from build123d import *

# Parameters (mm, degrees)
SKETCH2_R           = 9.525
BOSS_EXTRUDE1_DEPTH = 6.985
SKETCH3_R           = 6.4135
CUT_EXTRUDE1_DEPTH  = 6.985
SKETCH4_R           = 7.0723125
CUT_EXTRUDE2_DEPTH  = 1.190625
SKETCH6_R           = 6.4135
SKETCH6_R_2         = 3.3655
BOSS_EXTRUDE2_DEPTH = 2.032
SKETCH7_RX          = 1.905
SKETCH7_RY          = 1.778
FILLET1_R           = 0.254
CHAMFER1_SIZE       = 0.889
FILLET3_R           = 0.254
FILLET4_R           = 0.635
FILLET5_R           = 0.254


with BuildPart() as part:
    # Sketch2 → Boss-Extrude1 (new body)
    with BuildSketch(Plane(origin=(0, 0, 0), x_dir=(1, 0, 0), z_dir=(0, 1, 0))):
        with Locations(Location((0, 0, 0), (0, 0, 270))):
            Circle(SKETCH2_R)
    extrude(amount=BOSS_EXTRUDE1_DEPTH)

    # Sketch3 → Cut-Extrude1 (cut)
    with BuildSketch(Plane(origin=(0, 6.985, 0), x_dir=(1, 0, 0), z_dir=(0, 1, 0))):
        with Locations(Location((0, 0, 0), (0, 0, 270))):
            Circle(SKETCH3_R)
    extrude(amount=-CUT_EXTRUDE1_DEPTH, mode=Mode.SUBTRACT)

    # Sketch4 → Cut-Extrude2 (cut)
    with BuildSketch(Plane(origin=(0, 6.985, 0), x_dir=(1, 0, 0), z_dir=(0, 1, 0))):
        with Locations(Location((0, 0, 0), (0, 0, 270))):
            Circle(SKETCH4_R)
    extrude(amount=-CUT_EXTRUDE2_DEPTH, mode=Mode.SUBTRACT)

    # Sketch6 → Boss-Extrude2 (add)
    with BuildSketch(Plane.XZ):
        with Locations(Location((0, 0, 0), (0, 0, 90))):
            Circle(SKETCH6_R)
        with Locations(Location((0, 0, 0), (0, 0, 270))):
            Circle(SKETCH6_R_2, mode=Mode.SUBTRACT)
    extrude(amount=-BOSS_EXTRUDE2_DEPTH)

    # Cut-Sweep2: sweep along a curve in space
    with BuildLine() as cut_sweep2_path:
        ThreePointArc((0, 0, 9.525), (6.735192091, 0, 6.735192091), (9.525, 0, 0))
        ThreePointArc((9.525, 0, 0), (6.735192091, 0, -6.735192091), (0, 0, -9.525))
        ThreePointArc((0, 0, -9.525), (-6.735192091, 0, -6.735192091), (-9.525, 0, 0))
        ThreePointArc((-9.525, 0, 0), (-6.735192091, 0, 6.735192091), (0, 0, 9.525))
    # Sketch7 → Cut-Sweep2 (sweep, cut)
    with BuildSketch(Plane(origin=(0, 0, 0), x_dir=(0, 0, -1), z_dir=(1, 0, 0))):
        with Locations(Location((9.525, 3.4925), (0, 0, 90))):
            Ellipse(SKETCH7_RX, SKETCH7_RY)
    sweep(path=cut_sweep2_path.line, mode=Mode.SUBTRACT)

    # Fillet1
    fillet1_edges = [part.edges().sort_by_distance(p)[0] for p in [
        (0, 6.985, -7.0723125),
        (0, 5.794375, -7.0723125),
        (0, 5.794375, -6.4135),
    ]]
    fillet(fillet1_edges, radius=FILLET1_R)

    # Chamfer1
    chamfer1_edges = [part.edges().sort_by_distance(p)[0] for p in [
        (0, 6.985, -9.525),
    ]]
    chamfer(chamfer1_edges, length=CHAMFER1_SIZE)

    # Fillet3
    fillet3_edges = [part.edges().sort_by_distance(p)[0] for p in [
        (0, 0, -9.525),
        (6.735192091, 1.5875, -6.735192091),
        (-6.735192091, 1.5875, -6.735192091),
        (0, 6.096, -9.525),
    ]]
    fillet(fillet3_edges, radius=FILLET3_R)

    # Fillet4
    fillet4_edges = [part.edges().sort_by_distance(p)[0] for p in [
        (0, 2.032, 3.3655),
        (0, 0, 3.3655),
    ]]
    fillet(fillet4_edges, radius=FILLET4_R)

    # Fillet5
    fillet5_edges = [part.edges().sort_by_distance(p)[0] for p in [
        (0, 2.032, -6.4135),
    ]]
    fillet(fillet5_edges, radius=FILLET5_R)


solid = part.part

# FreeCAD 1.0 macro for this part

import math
import FreeCAD as App
import Part
import Sketcher
from FreeCAD import Vector
Q = App.Units.Quantity


def edges_at(feature, points):
    """Names of the edges that pass closest to the given points."""
    edges = feature.Shape.Edges
    near = lambda p: min(range(len(edges)), key=lambda i: edges[i].distToShape(Part.Vertex(*p))[0])
    return sorted({f"Edge{near(p) + 1}" for p in points})

doc = App.newDocument("Part")
params = doc.addObject("Spreadsheet::Sheet", "Params")
for row, (alias, value) in enumerate([
    ("sketch1_diameter", "0.75 in"),
    ("pad1_length", "0.275 in"),
    ("sketch2_diameter", "0.505 in"),
    ("pocket1_length", "0.275 in"),
    ("pocket2_length", "0.046875 in"),
    ("sketch4_diameter", "0.505 in"),
    ("sketch4_diameter2", "0.265 in"),
    ("pad2_length", "0.08 in"),
    ("sketch6_radius", "0.375 in"),
    ("fillet_radius", "0.01 in"),
    ("chamfer_size", "0.035 in"),
    ("fillet2_radius", "0.01 in"),
    ("fillet3_radius", "0.025 in"),
    ("fillet4_radius", "0.01 in"),
], start=1):
    params.set(f"A{row}", alias)
    params.set(f"B{row}", "=" + value)
    params.setAlias(f"B{row}", alias)

body = doc.addObject("PartDesign::Body", "Body")

sketch1 = body.newObject("Sketcher::SketchObject", "Sketch")
sketch1.AttachmentSupport = (doc.getObject("XZ_Plane"), [""])
sketch1.MapMode = "FlatFace"
sketch1.addGeometry(Part.Circle(Vector(0, 0, 0), Vector(0, 0, 1), 10), False)
sketch1.addConstraint([
    Sketcher.Constraint("Coincident", 0, 3, -1, 1),
    Sketcher.Constraint("Diameter", 0, Q("0.75 in")),
])
sketch1.setExpression("Constraints[1]", "Params.sketch1_diameter")
pad1 = body.newObject("PartDesign::Pad", "Pad")
pad1.Profile = sketch1
pad1.setExpression("Length", "Params.pad1_length")
pad1.Reversed = True

sketch2 = body.newObject("Sketcher::SketchObject", "Sketch001")
sketch2.AttachmentSupport = (doc.getObject("XZ_Plane"), [""])
sketch2.MapMode = "FlatFace"
sketch2.AttachmentOffset = App.Placement(Vector(0, 0, -0.275 * 25.4), App.Rotation())
sketch2.addGeometry(Part.Circle(Vector(0, 0, 0), Vector(0, 0, 1), 6), False)
sketch2.addConstraint([
    Sketcher.Constraint("Coincident", 0, 3, -1, 1),
    Sketcher.Constraint("Diameter", 0, Q("0.505 in")),
])
sketch2.setExpression("Constraints[1]", "Params.sketch2_diameter")
pocket1 = body.newObject("PartDesign::Pocket", "Pocket")
pocket1.Profile = sketch2
pocket1.setExpression("Length", "Params.pocket1_length")
pocket1.Reversed = True

sketch3 = body.newObject("Sketcher::SketchObject", "Sketch002")
sketch3.AttachmentSupport = (doc.getObject("XZ_Plane"), [""])
sketch3.MapMode = "FlatFace"
sketch3.AttachmentOffset = App.Placement(Vector(0, 0, -0.275 * 25.4), App.Rotation())
sketch3.addGeometry(Part.Circle(Vector(0, 0, 0), Vector(0, 0, 1), 7), False)
sketch3.addConstraint([
    Sketcher.Constraint("Coincident", 0, 3, -1, 1),
    Sketcher.Constraint("Diameter", 0, 14.144625),
])
pocket2 = body.newObject("PartDesign::Pocket", "Pocket001")
pocket2.Profile = sketch3
pocket2.setExpression("Length", "Params.pocket2_length")
pocket2.Reversed = True

sketch4 = body.newObject("Sketcher::SketchObject", "Sketch003")
sketch4.AttachmentSupport = (doc.getObject("XZ_Plane"), [""])
sketch4.MapMode = "FlatFace"
sketch4.addGeometry([
    Part.Circle(Vector(0, 0, 0), Vector(0, 0, 1), 6.4),
    Part.Circle(Vector(0, 0, 0), Vector(0, 0, 1), 3.4),
], False)
sketch4.addConstraint([
    Sketcher.Constraint("Coincident", 0, 3, -1, 1),
    Sketcher.Constraint("Coincident", 1, 3, -1, 1),
    Sketcher.Constraint("Diameter", 0, Q("0.505 in")),
    Sketcher.Constraint("Diameter", 1, Q("0.265 in")),
])
sketch4.setExpression("Constraints[2]", "Params.sketch4_diameter")
sketch4.setExpression("Constraints[3]", "Params.sketch4_diameter2")
pad2 = body.newObject("PartDesign::Pad", "Pad001")
pad2.Profile = sketch4
pad2.setExpression("Length", "Params.pad2_length")
pad2.Reversed = True

sketch5 = body.newObject("Sketcher::SketchObject", "Sketch004")
sketch5.AttachmentSupport = (doc.getObject("YZ_Plane"), [""])
sketch5.MapMode = "FlatFace"
sketch5.addGeometry(Part.Ellipse(Vector(5.3975, -9.525, 0), Vector(3.4925, -7.747, 0), Vector(3.4925, -9.525, 0)), False)
sketch5.addConstraint(Sketcher.Constraint("Block", 0))

sketch6 = body.newObject("Sketcher::SketchObject", "Sketch005")
sketch6.AttachmentSupport = (doc.getObject("XZ_Plane"), [""])
sketch6.MapMode = "FlatFace"
sketch6.addGeometry([
    Part.ArcOfCircle(Part.Circle(Vector(0, 0, 0), Vector(0, 0, 1), 10), math.radians(0), math.radians(90)),
    Part.ArcOfCircle(Part.Circle(Vector(0, 0, 0), Vector(0, 0, 1), 10), math.radians(-90), math.radians(0)),
    Part.ArcOfCircle(Part.Circle(Vector(0, 0, 0), Vector(0, 0, 1), 10), math.radians(180), math.radians(270)),
    Part.ArcOfCircle(Part.Circle(Vector(0, 0, 0), Vector(0, 0, 1), 10), math.radians(90), math.radians(180)),
], False)
sketch6.addConstraint([
    Sketcher.Constraint("Tangent", 0, 1, 1, 2),
    Sketcher.Constraint("Tangent", 1, 1, 2, 2),
    Sketcher.Constraint("Tangent", 2, 1, 3, 2),
    Sketcher.Constraint("Tangent", 3, 1, 0, 2),
    Sketcher.Constraint("Coincident", 0, 3, -1, 1),
    Sketcher.Constraint("Equal", 0, 1),
    Sketcher.Constraint("PointOnObject", 0, 1, -1),
    Sketcher.Constraint("PointOnObject", 1, 1, -2),
    Sketcher.Constraint("PointOnObject", 2, 1, -1),
    Sketcher.Constraint("PointOnObject", 3, 1, -2),
    Sketcher.Constraint("Radius", 0, Q("0.375 in")),
])
sketch6.setExpression("Constraints[10]", "Params.sketch6_radius")
doc.recompute()

subtractivepipe = body.newObject("PartDesign::SubtractivePipe", "SubtractivePipe")
subtractivepipe.Profile = sketch5
subtractivepipe.Spine = (sketch6, ["Edge1", "Edge2", "Edge3", "Edge4"])
doc.recompute()

fillet = body.newObject("PartDesign::Fillet", "Fillet")
fillet.Base = (subtractivepipe, edges_at(subtractivepipe, [(0, 6.985, -7.072), (0, 5.794, -7.072), (0, 5.794, -6.413)]))
fillet.setExpression("Radius", "Params.fillet_radius")
doc.recompute()

chamfer = body.newObject("PartDesign::Chamfer", "Chamfer")
chamfer.Base = (fillet, edges_at(fillet, [(0, 6.985, -9.525)]))
chamfer.setExpression("Size", "Params.chamfer_size")
doc.recompute()

fillet2 = body.newObject("PartDesign::Fillet", "Fillet001")
fillet2.Base = (chamfer, edges_at(chamfer, [
    (0, 0, -9.525),
    (6.735, 1.587, -6.735),
    (-6.735, 1.587, -6.735),
    (0, 6.096, -9.525),
]))
fillet2.setExpression("Radius", "Params.fillet2_radius")
doc.recompute()

fillet3 = body.newObject("PartDesign::Fillet", "Fillet002")
fillet3.Base = (fillet2, edges_at(fillet2, [(0, 2.032, 3.365), (0, 0, 3.365)]))
fillet3.setExpression("Radius", "Params.fillet3_radius")
doc.recompute()

fillet4 = body.newObject("PartDesign::Fillet", "Fillet003")
fillet4.Base = (fillet3, edges_at(fillet3, [(0, 2.032, -6.413)]))
fillet4.setExpression("Radius", "Params.fillet4_radius")

doc.recompute()
